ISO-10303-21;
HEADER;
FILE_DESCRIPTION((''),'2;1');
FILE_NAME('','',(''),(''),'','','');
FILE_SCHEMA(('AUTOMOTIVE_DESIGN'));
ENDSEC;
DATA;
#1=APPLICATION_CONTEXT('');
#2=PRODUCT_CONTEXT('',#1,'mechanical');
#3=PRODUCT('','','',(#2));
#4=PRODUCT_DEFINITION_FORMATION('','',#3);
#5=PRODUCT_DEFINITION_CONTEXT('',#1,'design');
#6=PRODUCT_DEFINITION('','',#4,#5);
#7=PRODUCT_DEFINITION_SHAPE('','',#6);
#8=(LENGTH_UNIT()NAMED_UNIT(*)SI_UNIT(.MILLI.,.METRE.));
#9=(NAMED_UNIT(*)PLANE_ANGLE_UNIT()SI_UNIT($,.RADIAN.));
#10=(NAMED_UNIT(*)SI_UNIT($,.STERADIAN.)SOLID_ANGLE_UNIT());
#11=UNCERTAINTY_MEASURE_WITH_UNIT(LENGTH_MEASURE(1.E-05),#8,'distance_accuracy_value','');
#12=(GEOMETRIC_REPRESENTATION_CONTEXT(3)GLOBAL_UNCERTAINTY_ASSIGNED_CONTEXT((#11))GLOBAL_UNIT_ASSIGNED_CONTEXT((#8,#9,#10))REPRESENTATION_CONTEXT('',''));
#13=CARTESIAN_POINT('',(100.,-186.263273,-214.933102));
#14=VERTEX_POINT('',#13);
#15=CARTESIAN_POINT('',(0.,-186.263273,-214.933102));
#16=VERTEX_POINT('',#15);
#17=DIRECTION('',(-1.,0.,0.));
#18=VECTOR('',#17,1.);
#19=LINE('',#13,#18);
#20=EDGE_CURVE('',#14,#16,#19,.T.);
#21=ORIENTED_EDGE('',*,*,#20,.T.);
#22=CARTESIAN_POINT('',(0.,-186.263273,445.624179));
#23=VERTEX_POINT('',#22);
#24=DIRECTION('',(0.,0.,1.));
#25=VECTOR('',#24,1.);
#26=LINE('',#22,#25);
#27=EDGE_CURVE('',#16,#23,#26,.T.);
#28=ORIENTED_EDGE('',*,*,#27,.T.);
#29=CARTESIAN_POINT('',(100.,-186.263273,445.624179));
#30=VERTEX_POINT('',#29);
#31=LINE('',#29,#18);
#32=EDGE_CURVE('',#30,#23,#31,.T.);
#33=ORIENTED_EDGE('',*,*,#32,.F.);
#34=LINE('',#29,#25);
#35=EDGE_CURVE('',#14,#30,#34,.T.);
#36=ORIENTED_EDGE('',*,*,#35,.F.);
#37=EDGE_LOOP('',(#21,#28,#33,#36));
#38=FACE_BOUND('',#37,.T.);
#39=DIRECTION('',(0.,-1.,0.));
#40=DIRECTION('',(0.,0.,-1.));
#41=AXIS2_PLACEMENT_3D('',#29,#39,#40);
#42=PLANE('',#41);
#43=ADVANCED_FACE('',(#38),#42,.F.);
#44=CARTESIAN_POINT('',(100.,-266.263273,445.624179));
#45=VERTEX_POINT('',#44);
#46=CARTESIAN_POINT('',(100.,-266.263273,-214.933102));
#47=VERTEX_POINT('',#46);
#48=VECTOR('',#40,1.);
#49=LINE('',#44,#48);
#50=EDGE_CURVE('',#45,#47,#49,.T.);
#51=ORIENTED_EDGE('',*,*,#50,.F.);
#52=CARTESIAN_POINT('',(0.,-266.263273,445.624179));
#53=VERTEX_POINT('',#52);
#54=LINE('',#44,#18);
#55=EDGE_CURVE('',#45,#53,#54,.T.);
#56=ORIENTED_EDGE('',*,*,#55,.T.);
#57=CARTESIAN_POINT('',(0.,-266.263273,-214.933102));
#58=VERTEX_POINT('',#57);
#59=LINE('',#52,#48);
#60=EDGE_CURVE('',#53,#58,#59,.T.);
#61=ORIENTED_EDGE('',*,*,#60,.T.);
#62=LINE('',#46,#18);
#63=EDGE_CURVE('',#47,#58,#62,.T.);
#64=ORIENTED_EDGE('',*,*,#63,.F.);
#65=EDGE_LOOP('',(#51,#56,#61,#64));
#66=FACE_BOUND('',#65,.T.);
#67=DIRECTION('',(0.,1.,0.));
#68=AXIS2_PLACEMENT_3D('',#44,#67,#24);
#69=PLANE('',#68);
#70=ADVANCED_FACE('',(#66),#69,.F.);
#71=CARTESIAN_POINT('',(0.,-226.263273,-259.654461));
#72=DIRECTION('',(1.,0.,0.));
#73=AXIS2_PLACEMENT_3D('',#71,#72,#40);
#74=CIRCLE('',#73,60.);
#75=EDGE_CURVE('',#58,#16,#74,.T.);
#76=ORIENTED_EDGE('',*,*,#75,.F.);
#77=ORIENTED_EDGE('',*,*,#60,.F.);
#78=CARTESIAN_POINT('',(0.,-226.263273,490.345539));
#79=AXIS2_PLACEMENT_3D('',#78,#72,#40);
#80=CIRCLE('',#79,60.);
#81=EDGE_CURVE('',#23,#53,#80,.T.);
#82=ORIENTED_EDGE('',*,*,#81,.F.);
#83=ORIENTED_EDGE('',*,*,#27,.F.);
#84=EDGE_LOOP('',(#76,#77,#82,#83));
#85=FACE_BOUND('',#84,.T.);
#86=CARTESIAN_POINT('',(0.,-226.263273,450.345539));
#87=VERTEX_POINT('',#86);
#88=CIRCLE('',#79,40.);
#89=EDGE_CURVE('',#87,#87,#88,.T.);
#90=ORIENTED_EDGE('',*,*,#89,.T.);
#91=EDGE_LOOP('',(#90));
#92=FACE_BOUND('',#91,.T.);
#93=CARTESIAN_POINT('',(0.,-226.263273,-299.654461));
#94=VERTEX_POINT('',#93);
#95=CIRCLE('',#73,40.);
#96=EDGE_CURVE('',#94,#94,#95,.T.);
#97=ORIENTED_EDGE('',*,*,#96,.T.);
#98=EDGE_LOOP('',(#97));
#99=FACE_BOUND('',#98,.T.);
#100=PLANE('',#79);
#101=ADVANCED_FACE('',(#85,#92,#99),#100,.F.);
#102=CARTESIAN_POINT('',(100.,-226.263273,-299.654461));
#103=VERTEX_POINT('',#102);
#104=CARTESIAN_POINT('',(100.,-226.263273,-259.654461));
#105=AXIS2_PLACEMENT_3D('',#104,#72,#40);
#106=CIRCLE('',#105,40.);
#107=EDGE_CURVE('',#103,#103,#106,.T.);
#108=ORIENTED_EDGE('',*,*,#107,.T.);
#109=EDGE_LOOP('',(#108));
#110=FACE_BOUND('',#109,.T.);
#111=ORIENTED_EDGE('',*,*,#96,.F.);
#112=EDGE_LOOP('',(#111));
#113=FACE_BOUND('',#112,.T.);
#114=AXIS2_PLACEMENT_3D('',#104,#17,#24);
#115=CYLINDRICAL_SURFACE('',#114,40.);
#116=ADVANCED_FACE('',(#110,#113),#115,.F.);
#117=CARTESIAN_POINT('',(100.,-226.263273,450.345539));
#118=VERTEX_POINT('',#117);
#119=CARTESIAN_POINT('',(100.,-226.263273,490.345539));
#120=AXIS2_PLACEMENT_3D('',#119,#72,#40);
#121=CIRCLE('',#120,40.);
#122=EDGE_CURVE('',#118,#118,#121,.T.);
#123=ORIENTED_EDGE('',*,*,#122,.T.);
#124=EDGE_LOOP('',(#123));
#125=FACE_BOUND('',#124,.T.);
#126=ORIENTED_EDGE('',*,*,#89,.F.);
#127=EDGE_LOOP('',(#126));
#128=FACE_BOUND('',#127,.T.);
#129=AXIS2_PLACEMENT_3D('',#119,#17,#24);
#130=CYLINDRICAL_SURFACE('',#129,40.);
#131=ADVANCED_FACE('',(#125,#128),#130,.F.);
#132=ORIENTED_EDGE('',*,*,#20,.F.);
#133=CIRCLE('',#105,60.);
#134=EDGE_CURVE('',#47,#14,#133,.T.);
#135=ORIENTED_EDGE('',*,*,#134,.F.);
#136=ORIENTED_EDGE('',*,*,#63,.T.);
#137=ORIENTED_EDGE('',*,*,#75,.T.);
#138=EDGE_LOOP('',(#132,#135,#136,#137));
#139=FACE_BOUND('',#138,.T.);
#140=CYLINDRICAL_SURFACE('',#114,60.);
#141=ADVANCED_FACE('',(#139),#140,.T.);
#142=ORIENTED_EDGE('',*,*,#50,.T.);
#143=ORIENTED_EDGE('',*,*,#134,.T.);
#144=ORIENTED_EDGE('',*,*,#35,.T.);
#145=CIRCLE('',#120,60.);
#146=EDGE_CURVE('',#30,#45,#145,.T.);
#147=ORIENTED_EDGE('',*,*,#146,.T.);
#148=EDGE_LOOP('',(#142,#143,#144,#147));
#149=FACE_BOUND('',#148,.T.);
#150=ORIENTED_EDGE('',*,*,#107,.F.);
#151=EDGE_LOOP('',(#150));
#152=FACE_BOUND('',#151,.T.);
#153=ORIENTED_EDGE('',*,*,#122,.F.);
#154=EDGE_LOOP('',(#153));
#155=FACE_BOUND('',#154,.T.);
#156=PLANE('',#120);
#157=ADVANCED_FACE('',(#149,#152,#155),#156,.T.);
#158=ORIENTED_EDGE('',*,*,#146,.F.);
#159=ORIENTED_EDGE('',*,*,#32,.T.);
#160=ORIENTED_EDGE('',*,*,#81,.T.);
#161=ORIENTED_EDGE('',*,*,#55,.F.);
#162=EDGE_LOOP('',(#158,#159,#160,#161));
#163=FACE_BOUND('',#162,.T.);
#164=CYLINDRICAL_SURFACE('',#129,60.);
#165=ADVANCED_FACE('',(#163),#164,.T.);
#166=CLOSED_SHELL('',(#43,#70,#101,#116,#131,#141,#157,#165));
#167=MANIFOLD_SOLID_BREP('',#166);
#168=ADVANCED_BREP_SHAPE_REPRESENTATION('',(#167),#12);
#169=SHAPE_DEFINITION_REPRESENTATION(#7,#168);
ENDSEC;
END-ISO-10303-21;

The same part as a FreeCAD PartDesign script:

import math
import FreeCAD as App
import Part
import Sketcher
from FreeCAD import Vector
Q = App.Units.Quantity

doc = App.newDocument("Part")
body = doc.addObject("PartDesign::Body", "Body")

sketch1 = body.newObject("Sketcher::SketchObject", "Sketch")
sketch1.AttachmentSupport = (doc.getObject("YZ_Plane"), [""])
sketch1.MapMode = "FlatFace"
sketch1.addGeometry([
    Part.LineSegment(Vector(-186, -215, 0), Vector(-186, 446, 0)),
    Part.ArcOfCircle(Part.Circle(Vector(-226, 490, 0), Vector(0, 0, 1), 60), math.radians(-48), math.radians(228)),
    Part.LineSegment(Vector(-266, 446, 0), Vector(-266, -215, 0)),
    Part.ArcOfCircle(Part.Circle(Vector(-226, -260, 0), Vector(0, 0, 1), 60), math.radians(132), math.radians(408)),
    Part.Circle(Vector(-226, -260, 0), Vector(0, 0, 1), 40),
    Part.Circle(Vector(-226, 490, 0), Vector(0, 0, 1), 40),
], False)
sketch1.addConstraint([
    Sketcher.Constraint("Coincident", 0, 2, 1, 1),
    Sketcher.Constraint("Coincident", 1, 2, 2, 1),
    Sketcher.Constraint("Coincident", 2, 2, 3, 1),
    Sketcher.Constraint("Coincident", 3, 2, 0, 1),
    Sketcher.Constraint("Vertical", 0),
    Sketcher.Constraint("Vertical", 2),
    Sketcher.Constraint("Coincident", 4, 3, 3, 3),
    Sketcher.Constraint("Coincident", 5, 3, 1, 3),
    Sketcher.Constraint("Equal", 1, 3),
    Sketcher.Constraint("Equal", 4, 5),
    Sketcher.Constraint("Horizontal", 0, 2, 1, 2),
    Sketcher.Constraint("Horizontal", 2, 2, 3, 2),
    Sketcher.Constraint("Diameter", 4, Q("80 mm")),
    Sketcher.Constraint("Radius", 1, Q("60 mm")),
    Sketcher.Constraint("DistanceY", 3, 3, 1, 3, Q("750 mm")),
    Sketcher.Constraint("DistanceX", 1, 3, 0, 2, Q("40 mm")),
    Sketcher.Constraint("DistanceY", 2, 2, -1, 1, Q("214.933102 mm")),
    Sketcher.Constraint("DistanceX", 1, 3, -1, 1, Q("226.263273 mm")),
])
pad1 = body.newObject("PartDesign::Pad", "Pad")
pad1.Profile = sketch1
pad1.Length = 100

doc.recompute()
